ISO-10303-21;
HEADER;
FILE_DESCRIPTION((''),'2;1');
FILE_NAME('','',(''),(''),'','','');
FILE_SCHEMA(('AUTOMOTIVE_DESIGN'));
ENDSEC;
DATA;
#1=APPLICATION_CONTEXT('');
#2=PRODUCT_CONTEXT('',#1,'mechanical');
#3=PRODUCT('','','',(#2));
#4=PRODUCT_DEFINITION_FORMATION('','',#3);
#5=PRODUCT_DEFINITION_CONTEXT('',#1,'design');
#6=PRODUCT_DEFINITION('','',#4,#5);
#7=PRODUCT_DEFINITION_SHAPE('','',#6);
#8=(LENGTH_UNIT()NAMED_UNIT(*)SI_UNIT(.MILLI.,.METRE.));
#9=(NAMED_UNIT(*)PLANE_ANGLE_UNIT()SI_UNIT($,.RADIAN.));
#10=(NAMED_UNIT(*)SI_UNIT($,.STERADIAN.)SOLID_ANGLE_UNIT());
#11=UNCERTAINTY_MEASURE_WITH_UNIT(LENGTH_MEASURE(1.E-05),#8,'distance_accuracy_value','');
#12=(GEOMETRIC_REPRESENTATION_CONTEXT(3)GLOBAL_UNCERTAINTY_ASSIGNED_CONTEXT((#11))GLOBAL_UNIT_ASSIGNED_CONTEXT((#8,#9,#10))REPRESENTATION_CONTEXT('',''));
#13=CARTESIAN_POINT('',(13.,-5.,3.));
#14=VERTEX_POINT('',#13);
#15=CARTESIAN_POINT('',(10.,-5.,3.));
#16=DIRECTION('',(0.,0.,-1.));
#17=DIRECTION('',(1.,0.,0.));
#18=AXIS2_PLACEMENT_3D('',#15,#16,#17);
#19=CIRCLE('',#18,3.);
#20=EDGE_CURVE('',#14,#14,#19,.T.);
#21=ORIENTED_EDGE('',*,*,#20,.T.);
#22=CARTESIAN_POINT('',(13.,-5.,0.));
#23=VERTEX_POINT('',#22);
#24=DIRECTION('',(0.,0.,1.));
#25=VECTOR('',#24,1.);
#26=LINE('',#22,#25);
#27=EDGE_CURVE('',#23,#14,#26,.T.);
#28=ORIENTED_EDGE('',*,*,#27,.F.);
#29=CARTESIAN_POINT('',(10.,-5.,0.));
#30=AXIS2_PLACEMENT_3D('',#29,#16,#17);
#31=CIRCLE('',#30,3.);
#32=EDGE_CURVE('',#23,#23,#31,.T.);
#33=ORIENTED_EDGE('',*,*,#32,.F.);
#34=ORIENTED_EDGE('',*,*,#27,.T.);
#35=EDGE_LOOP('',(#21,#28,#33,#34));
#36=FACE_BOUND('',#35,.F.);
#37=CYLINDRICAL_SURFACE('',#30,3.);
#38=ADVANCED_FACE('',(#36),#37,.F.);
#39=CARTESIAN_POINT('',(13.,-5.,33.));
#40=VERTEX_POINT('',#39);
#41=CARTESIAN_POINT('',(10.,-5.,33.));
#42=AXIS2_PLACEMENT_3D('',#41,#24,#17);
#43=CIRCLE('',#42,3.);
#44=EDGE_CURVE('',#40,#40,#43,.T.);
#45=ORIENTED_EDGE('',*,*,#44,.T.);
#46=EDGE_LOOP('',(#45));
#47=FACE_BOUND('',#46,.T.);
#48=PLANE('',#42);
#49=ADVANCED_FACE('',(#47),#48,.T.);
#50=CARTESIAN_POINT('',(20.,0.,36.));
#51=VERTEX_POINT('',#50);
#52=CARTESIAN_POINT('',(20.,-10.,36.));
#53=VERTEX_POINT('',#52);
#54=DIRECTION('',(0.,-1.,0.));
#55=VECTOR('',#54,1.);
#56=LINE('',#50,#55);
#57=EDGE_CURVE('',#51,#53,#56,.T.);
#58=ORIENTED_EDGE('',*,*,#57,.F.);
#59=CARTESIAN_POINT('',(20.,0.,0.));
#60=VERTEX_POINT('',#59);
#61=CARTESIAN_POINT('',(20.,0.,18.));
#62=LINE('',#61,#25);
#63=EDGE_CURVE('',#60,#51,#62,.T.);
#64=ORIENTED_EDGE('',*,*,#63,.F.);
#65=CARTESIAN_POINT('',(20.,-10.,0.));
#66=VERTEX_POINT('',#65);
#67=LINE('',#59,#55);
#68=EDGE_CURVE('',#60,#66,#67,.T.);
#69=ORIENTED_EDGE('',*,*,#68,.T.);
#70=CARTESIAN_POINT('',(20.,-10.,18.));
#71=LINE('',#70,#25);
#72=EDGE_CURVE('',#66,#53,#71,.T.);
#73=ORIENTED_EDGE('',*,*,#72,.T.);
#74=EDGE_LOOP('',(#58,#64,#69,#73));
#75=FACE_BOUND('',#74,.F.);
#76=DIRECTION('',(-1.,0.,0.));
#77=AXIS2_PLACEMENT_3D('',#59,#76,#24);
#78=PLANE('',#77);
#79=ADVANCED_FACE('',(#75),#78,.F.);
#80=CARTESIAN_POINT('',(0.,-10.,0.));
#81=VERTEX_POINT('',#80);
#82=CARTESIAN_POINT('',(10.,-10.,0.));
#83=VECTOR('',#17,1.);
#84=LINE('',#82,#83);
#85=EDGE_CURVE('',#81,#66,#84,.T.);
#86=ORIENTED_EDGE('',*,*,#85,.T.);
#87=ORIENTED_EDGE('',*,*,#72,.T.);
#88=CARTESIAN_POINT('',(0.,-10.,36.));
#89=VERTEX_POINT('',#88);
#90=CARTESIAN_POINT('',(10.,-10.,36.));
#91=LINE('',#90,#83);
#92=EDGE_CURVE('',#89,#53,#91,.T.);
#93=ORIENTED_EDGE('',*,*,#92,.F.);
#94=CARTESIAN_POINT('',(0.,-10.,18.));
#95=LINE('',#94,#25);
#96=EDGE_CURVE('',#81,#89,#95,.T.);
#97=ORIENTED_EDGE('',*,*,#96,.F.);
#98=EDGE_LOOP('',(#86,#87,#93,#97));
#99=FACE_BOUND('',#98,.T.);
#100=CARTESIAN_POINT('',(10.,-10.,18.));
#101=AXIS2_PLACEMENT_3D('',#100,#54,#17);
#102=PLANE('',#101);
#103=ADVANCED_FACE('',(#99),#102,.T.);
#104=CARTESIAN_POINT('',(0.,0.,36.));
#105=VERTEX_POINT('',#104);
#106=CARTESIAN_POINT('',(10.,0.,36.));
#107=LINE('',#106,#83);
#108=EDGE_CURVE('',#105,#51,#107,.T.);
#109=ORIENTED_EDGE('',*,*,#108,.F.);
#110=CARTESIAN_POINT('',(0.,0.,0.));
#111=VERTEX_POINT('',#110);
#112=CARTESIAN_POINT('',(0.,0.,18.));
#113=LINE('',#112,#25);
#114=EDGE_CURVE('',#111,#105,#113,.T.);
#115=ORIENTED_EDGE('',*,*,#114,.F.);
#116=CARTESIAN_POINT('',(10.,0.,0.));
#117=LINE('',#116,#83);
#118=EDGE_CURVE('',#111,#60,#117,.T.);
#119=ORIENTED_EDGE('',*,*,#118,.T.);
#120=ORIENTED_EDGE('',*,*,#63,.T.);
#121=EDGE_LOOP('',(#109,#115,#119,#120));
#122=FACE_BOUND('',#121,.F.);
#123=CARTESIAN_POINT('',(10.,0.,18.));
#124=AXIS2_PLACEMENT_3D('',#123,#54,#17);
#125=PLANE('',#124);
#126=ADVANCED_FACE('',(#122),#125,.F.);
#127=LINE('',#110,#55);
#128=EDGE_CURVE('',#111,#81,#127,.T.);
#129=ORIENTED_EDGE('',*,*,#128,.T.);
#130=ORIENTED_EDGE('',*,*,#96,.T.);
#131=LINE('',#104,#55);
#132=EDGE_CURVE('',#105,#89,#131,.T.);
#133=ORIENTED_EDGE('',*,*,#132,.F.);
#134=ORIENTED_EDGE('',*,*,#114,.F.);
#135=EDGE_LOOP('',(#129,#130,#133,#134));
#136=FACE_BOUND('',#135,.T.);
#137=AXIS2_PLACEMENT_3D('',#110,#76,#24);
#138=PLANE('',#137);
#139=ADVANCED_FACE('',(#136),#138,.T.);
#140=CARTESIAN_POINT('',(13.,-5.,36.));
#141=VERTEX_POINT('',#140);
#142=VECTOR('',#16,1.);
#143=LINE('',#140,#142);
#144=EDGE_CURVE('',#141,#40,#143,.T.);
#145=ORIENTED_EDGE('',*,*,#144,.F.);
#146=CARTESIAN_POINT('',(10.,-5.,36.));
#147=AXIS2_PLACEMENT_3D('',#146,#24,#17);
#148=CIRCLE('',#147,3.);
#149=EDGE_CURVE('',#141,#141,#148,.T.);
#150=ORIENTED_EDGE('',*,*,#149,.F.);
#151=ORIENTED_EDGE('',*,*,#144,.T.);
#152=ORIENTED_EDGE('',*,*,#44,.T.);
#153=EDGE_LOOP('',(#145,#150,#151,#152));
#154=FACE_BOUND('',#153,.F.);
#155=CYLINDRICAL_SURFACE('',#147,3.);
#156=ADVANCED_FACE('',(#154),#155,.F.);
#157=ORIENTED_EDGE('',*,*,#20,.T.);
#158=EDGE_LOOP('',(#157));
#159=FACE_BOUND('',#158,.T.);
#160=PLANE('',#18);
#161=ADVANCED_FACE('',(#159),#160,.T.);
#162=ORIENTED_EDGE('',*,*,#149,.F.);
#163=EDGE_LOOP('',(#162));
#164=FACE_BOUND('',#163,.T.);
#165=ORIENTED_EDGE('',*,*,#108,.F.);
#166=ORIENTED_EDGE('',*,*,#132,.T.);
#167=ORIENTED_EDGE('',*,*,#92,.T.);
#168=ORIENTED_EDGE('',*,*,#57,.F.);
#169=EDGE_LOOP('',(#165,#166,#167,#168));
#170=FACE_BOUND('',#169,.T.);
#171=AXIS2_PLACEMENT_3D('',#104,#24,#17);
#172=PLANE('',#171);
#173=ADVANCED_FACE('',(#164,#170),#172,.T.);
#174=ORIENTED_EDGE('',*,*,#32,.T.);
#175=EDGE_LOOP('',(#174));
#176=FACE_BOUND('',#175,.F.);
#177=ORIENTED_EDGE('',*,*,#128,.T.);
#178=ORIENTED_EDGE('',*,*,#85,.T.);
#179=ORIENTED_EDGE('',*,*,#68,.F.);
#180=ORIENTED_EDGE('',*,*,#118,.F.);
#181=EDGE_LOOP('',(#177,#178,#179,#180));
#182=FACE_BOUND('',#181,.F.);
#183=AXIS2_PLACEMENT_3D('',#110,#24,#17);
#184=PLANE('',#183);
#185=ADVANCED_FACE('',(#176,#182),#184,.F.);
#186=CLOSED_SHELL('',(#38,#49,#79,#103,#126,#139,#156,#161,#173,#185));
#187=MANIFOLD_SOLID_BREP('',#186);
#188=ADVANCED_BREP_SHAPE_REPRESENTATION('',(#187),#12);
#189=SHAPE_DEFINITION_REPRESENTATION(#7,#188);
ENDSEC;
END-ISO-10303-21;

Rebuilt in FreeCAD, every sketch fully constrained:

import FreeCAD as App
import Part
import Sketcher
from FreeCAD import Vector


def add_polygon(sketch, points):
    """Adds a closed chain of lines whose ends are joined by coincident constraints."""
    first, n = sketch.GeometryCount, len(points)
    for a, b in zip(points, points[1:] + points[:1]):
        sketch.addGeometry(Part.LineSegment(App.Vector(*a, 0), App.Vector(*b, 0)), False)
    for i in range(n):
        sketch.addConstraint(Sketcher.Constraint("Coincident", first + i, 2, first + (i + 1) % n, 1))

doc = App.newDocument("Part")
body = doc.addObject("PartDesign::Body", "Body")

sketch1 = doc.addObject("Sketcher::SketchObject", "Sketch")
body.addObject(sketch1)
sketch1.AttachmentSupport = (doc.XZ_Plane, [""])
sketch1.MapMode = "FlatFace"
add_polygon(sketch1, [(0, 36), (0, 0), (20, 0), (20, 36)])
sketch1.addConstraint([
    Sketcher.Constraint("Vertical", 0),
    Sketcher.Constraint("Horizontal", 1),
    Sketcher.Constraint("Vertical", 2),
    Sketcher.Constraint("Horizontal", 3),
    Sketcher.Constraint("Coincident", 0, 2, -1, 1),
    Sketcher.Constraint("DistanceX", 1, 1, 1, 2, 20.0),
    Sketcher.Constraint("DistanceY", 0, 2, 0, 1, 36.0),
])
pad1 = doc.addObject("PartDesign::Pad", "Pad")
body.addObject(pad1)
pad1.Profile = sketch1
pad1.Length = 10

sketch2 = doc.addObject("Sketcher::SketchObject", "Sketch001")
body.addObject(sketch2)
sketch2.AttachmentSupport = (doc.XY_Plane, [""])
sketch2.MapMode = "FlatFace"
sketch2.addGeometry(Part.Circle(Vector(10, -5, 0), Vector(0, 0, 1), 3), False)
sketch2.addConstraint([
    Sketcher.Constraint("Diameter", 0, 6.0),
    Sketcher.Constraint("DistanceX", -1, 1, 0, 3, 10.0),
    Sketcher.Constraint("DistanceY", 0, 3, -1, 1, 5.0),
])
pocket1 = doc.addObject("PartDesign::Pocket", "Pocket")
body.addObject(pocket1)
pocket1.Profile = sketch2
pocket1.Length = 3
pocket1.Reversed = True

sketch3 = doc.addObject("Sketcher::SketchObject", "Sketch002")
body.addObject(sketch3)
sketch3.AttachmentSupport = (doc.XY_Plane, [""])
sketch3.MapMode = "FlatFace"
sketch3.AttachmentOffset = App.Placement(Vector(0, 0, 36), App.Rotation())
sketch3.addGeometry(Part.Circle(Vector(10, -5, 0), Vector(0, 0, 1), 3), False)
sketch3.addConstraint([
    Sketcher.Constraint("Diameter", 0, 6.0),
    Sketcher.Constraint("DistanceX", -1, 1, 0, 3, 10.0),
    Sketcher.Constraint("DistanceY", 0, 3, -1, 1, 5.0),
])
pocket2 = doc.addObject("PartDesign::Pocket", "Pocket001")
body.addObject(pocket2)
pocket2.Profile = sketch3
pocket2.Length = 3

doc.recompute()
